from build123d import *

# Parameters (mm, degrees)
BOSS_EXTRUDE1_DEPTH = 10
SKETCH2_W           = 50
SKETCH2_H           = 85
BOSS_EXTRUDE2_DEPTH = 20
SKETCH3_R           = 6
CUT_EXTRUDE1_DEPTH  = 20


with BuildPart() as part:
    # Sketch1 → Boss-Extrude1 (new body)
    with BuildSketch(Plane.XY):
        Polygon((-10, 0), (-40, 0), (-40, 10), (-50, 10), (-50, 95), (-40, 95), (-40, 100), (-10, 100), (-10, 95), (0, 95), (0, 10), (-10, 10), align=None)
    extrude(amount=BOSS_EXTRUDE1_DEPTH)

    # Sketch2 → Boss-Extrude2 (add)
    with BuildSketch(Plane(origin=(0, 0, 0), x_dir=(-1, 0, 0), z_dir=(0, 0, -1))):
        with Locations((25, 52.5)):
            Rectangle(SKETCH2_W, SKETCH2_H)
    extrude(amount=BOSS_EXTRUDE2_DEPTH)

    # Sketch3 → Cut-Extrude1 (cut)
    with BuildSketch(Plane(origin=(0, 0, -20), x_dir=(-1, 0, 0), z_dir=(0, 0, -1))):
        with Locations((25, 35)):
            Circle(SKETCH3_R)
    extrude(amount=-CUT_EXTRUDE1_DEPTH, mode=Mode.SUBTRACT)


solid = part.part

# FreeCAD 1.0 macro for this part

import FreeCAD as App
import Part
import Sketcher
from FreeCAD import Vector
Q = App.Units.Quantity


def add_polygon(sketch, points):
    """Adds a closed chain of lines whose ends are joined by coincident constraints."""
    first, n = sketch.GeometryCount, len(points)
    for a, b in zip(points, points[1:] + points[:1]):
        sketch.addGeometry(Part.LineSegment(App.Vector(*a, 0), App.Vector(*b, 0)), False)
    for i in range(n):
        sketch.addConstraint(Sketcher.Constraint("Coincident", first + i, 2, first + (i + 1) % n, 1))

doc = App.newDocument("Part")
body = doc.addObject("PartDesign::Body", "Body")

sketch1 = body.newObject("Sketcher::SketchObject", "Sketch")
sketch1.AttachmentSupport = (doc.getObject("XY_Plane"), [""])
sketch1.MapMode = "FlatFace"
add_polygon(sketch1, [(-40, 0), (-10, 0), (-10, 10), (0, 10), (0, 95), (-10, 95), (-10, 100), (-40, 100), (-40, 95), (-50, 95), (-50, 10), (-40, 10)])
sketch1.addConstraint(Sketcher.Constraint("Horizontal", 0))
sketch1.addConstraint(Sketcher.Constraint("Vertical", 1))
sketch1.addConstraint(Sketcher.Constraint("Horizontal", 2))
sketch1.addConstraint(Sketcher.Constraint("Vertical", 3))
sketch1.addConstraint(Sketcher.Constraint("Horizontal", 4))
sketch1.addConstraint(Sketcher.Constraint("Vertical", 5))
sketch1.addConstraint(Sketcher.Constraint("Horizontal", 6))
sketch1.addConstraint(Sketcher.Constraint("Vertical", 7))
sketch1.addConstraint(Sketcher.Constraint("Horizontal", 8))
sketch1.addConstraint(Sketcher.Constraint("Vertical", 9))
sketch1.addConstraint(Sketcher.Constraint("Horizontal", 10))
sketch1.addConstraint(Sketcher.Constraint("Vertical", 11))
sketch1.addConstraint(Sketcher.Constraint("PointOnObject", 0, 2, -1))
sketch1.addConstraint(Sketcher.Constraint("PointOnObject", 2, 2, -2))
sketch1.addConstraint(Sketcher.Constraint("Horizontal", 4, 2, 7, 2))
sketch1.addConstraint(Sketcher.Constraint("Horizontal", 2, 2, 9, 2))
sketch1.addConstraint(Sketcher.Constraint("Vertical", 1, 2, 4, 2))
sketch1.addConstraint(Sketcher.Constraint("Vertical", 7, 2, 10, 2))
sketch1.addConstraint(Sketcher.Constraint("Equal", 4, 8))
sketch1.addConstraint(Sketcher.Constraint("Equal", 10, 1))
sketch1.addConstraint(Sketcher.Constraint("DistanceX", 0, 1, 0, 2, Q("30 mm")))
sketch1.addConstraint(Sketcher.Constraint("DistanceX", 2, 1, 2, 2, Q("10 mm")))
sketch1.addConstraint(Sketcher.Constraint("DistanceY", 3, 1, 3, 2, Q("85 mm")))
sketch1.addConstraint(Sketcher.Constraint("DistanceY", 5, 1, 5, 2, Q("5 mm")))
pad1 = body.newObject("PartDesign::Pad", "Pad")
pad1.Profile = sketch1
pad1.Length = 10

sketch2 = body.newObject("Sketcher::SketchObject", "Sketch001")
sketch2.AttachmentSupport = (doc.getObject("XY_Plane"), [""])
sketch2.MapMode = "FlatFace"
add_polygon(sketch2, [(0, 95), (0, 10), (-50, 10), (-50, 95)])
sketch2.addConstraint(Sketcher.Constraint("Vertical", 0))
sketch2.addConstraint(Sketcher.Constraint("Horizontal", 1))
sketch2.addConstraint(Sketcher.Constraint("Vertical", 2))
sketch2.addConstraint(Sketcher.Constraint("Horizontal", 3))
sketch2.addConstraint(Sketcher.Constraint("PointOnObject", 0, 2, -2))
sketch2.addConstraint(Sketcher.Constraint("DistanceX", 1, 2, 1, 1, Q("50 mm")))
sketch2.addConstraint(Sketcher.Constraint("DistanceY", 0, 2, 0, 1, Q("85 mm")))
sketch2.addConstraint(Sketcher.Constraint("DistanceY", -1, 1, 0, 2, Q("10 mm")))
pad2 = body.newObject("PartDesign::Pad", "Pad001")
pad2.Profile = sketch2
pad2.Length = 20
pad2.Reversed = True

sketch3 = body.newObject("Sketcher::SketchObject", "Sketch002")
sketch3.AttachmentSupport = (doc.getObject("XY_Plane"), [""])
sketch3.MapMode = "FlatFace"
sketch3.AttachmentOffset = App.Placement(Vector(0, 0, -20), App.Rotation())
sketch3.addGeometry(Part.Circle(Vector(-25, 35, 0), Vector(0, 0, 1), 6), False)
sketch3.addConstraint(Sketcher.Constraint("Diameter", 0, Q("12 mm")))
sketch3.addConstraint(Sketcher.Constraint("DistanceX", 0, 3, -1, 1, Q("25 mm")))
sketch3.addConstraint(Sketcher.Constraint("DistanceY", -1, 1, 0, 3, Q("35 mm")))
pocket1 = body.newObject("PartDesign::Pocket", "Pocket")
pocket1.Profile = sketch3
pocket1.Length = 20
pocket1.Reversed = True

doc.recompute()
